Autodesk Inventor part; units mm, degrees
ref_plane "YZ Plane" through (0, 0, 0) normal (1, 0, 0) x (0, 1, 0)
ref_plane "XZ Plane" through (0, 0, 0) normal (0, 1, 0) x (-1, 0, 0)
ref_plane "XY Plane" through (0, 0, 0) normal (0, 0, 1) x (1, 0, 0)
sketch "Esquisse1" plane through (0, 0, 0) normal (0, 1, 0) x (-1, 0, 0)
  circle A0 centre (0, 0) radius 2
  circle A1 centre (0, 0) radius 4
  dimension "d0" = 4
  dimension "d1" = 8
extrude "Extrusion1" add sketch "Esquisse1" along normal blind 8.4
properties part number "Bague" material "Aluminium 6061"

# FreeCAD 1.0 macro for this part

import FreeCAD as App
import Part
import Sketcher

doc = App.newDocument("Part")
body = doc.addObject("PartDesign::Body", "Body")

# Sketch on XZ plane
sketch1 = body.newObject("Sketcher::SketchObject", "Sketch")
sketch1.AttachmentSupport = (doc.getObject("XZ_Plane"), [""])
sketch1.MapMode = "FlatFace"
sketch1.addGeometry([
    Part.Circle(App.Vector(0, 0, 0), App.Vector(0, 0, 1), 4),
    Part.Circle(App.Vector(0, 0, 0), App.Vector(0, 0, 1), 2),
], False)
sketch1.addConstraint([
    Sketcher.Constraint("Coincident", 0, 3, -1, 1),
    Sketcher.Constraint("Coincident", 1, 3, -1, 1),
    Sketcher.Constraint("Diameter", 0, 8.0),
    Sketcher.Constraint("Diameter", 1, 4.0),
])
pad1 = body.newObject("PartDesign::Pad", "Pad")
pad1.Profile = sketch1
pad1.Length = 8.4
pad1.Reversed = True

doc.recompute()
